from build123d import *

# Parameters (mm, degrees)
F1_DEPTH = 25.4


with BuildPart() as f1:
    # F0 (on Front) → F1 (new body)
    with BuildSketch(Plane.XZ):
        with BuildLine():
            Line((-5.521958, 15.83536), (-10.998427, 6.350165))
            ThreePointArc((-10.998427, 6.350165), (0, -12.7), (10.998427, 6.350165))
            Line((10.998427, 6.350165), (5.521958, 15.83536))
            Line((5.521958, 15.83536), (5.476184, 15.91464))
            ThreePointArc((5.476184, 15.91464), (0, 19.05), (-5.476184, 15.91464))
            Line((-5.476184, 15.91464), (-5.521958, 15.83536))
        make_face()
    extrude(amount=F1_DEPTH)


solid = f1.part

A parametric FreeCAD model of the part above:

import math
import FreeCAD as App
import Part
import Sketcher
from FreeCAD import Vector
Q = App.Units.Quantity

doc = App.newDocument("Part")
body = doc.addObject("PartDesign::Body", "Body")

# Sketch on XZ plane
sketch1 = body.newObject("Sketcher::SketchObject", "Sketch")
sketch1.AttachmentSupport = (doc.getObject("XZ_Plane"), [""])
sketch1.MapMode = "FlatFace"
sketch1.addGeometry(Part.LineSegment(Vector(-5.521958, 15.83536, 0), Vector(-10.998427, 6.350165, 0)), False)
sketch1.addGeometry(Part.ArcOfCircle(Part.Circle(Vector(0, 0, 0), Vector(0, 0, 1), 12.7), math.radians(149.999139), math.radians(390.000861)), False)
sketch1.addGeometry(Part.LineSegment(Vector(10.998427, 6.350165, 0), Vector(5.521958, 15.83536, 0)), False)
sketch1.addGeometry(Part.LineSegment(Vector(5.521958, 15.83536, 0), Vector(5.476184, 15.91464, 0)), False)
sketch1.addGeometry(Part.ArcOfCircle(Part.Circle(Vector(0, 12.7, 0), Vector(0, 0, 1), 6.35), math.radians(30.41387), math.radians(149.58613)), False)
sketch1.addGeometry(Part.LineSegment(Vector(-5.476184, 15.91464, 0), Vector(-5.521958, 15.83536, 0)), False)
sketch1.addConstraint(Sketcher.Constraint("Coincident", 0, 2, 1, 1))
sketch1.addConstraint(Sketcher.Constraint("Coincident", 1, 2, 2, 1))
sketch1.addConstraint(Sketcher.Constraint("Coincident", 2, 2, 3, 1))
sketch1.addConstraint(Sketcher.Constraint("Coincident", 3, 2, 4, 1))
sketch1.addConstraint(Sketcher.Constraint("Coincident", 4, 2, 5, 1))
sketch1.addConstraint(Sketcher.Constraint("Coincident", 5, 2, 0, 1))
sketch1.addConstraint(Sketcher.Constraint("Coincident", 1, 3, -1, 1))
sketch1.addConstraint(Sketcher.Constraint("PointOnObject", 4, 3, -2))
sketch1.addConstraint(Sketcher.Constraint("Radius", 1, Q("0.5 in")))
sketch1.addConstraint(Sketcher.Constraint("Radius", 4, Q("0.25 in")))
sketch1.addConstraint(Sketcher.Constraint("DistanceY", -1, 1, 4, 3, Q("0.5 in")))
sketch1.addConstraint(Sketcher.Constraint("DistanceX", -1, 1, 2, 2, Q("0.2173999 in")))
sketch1.addConstraint(Sketcher.Constraint("DistanceX", 5, 2, -1, 1, Q("0.2173999 in")))
sketch1.addConstraint(Sketcher.Constraint("DistanceY", -1, 1, 2, 2, 15.83536))
sketch1.addConstraint(Sketcher.Constraint("DistanceY", -1, 1, 3, 2, 15.91464))
sketch1.addConstraint(Sketcher.Constraint("DistanceY", -1, 1, 4, 2, 15.91464))
sketch1.addConstraint(Sketcher.Constraint("DistanceY", -1, 1, 5, 2, 15.83536))
sketch1.addConstraint(Sketcher.Constraint("DistanceX", 2, 2, 1, 2, 5.476469))
sketch1.addConstraint(Sketcher.Constraint("DistanceX", 0, 2, 3, 2, 16.474611))
pad1 = body.newObject("PartDesign::Pad", "Pad")
pad1.Profile = sketch1
pad1.Length = Q("1 in")

doc.recompute()
